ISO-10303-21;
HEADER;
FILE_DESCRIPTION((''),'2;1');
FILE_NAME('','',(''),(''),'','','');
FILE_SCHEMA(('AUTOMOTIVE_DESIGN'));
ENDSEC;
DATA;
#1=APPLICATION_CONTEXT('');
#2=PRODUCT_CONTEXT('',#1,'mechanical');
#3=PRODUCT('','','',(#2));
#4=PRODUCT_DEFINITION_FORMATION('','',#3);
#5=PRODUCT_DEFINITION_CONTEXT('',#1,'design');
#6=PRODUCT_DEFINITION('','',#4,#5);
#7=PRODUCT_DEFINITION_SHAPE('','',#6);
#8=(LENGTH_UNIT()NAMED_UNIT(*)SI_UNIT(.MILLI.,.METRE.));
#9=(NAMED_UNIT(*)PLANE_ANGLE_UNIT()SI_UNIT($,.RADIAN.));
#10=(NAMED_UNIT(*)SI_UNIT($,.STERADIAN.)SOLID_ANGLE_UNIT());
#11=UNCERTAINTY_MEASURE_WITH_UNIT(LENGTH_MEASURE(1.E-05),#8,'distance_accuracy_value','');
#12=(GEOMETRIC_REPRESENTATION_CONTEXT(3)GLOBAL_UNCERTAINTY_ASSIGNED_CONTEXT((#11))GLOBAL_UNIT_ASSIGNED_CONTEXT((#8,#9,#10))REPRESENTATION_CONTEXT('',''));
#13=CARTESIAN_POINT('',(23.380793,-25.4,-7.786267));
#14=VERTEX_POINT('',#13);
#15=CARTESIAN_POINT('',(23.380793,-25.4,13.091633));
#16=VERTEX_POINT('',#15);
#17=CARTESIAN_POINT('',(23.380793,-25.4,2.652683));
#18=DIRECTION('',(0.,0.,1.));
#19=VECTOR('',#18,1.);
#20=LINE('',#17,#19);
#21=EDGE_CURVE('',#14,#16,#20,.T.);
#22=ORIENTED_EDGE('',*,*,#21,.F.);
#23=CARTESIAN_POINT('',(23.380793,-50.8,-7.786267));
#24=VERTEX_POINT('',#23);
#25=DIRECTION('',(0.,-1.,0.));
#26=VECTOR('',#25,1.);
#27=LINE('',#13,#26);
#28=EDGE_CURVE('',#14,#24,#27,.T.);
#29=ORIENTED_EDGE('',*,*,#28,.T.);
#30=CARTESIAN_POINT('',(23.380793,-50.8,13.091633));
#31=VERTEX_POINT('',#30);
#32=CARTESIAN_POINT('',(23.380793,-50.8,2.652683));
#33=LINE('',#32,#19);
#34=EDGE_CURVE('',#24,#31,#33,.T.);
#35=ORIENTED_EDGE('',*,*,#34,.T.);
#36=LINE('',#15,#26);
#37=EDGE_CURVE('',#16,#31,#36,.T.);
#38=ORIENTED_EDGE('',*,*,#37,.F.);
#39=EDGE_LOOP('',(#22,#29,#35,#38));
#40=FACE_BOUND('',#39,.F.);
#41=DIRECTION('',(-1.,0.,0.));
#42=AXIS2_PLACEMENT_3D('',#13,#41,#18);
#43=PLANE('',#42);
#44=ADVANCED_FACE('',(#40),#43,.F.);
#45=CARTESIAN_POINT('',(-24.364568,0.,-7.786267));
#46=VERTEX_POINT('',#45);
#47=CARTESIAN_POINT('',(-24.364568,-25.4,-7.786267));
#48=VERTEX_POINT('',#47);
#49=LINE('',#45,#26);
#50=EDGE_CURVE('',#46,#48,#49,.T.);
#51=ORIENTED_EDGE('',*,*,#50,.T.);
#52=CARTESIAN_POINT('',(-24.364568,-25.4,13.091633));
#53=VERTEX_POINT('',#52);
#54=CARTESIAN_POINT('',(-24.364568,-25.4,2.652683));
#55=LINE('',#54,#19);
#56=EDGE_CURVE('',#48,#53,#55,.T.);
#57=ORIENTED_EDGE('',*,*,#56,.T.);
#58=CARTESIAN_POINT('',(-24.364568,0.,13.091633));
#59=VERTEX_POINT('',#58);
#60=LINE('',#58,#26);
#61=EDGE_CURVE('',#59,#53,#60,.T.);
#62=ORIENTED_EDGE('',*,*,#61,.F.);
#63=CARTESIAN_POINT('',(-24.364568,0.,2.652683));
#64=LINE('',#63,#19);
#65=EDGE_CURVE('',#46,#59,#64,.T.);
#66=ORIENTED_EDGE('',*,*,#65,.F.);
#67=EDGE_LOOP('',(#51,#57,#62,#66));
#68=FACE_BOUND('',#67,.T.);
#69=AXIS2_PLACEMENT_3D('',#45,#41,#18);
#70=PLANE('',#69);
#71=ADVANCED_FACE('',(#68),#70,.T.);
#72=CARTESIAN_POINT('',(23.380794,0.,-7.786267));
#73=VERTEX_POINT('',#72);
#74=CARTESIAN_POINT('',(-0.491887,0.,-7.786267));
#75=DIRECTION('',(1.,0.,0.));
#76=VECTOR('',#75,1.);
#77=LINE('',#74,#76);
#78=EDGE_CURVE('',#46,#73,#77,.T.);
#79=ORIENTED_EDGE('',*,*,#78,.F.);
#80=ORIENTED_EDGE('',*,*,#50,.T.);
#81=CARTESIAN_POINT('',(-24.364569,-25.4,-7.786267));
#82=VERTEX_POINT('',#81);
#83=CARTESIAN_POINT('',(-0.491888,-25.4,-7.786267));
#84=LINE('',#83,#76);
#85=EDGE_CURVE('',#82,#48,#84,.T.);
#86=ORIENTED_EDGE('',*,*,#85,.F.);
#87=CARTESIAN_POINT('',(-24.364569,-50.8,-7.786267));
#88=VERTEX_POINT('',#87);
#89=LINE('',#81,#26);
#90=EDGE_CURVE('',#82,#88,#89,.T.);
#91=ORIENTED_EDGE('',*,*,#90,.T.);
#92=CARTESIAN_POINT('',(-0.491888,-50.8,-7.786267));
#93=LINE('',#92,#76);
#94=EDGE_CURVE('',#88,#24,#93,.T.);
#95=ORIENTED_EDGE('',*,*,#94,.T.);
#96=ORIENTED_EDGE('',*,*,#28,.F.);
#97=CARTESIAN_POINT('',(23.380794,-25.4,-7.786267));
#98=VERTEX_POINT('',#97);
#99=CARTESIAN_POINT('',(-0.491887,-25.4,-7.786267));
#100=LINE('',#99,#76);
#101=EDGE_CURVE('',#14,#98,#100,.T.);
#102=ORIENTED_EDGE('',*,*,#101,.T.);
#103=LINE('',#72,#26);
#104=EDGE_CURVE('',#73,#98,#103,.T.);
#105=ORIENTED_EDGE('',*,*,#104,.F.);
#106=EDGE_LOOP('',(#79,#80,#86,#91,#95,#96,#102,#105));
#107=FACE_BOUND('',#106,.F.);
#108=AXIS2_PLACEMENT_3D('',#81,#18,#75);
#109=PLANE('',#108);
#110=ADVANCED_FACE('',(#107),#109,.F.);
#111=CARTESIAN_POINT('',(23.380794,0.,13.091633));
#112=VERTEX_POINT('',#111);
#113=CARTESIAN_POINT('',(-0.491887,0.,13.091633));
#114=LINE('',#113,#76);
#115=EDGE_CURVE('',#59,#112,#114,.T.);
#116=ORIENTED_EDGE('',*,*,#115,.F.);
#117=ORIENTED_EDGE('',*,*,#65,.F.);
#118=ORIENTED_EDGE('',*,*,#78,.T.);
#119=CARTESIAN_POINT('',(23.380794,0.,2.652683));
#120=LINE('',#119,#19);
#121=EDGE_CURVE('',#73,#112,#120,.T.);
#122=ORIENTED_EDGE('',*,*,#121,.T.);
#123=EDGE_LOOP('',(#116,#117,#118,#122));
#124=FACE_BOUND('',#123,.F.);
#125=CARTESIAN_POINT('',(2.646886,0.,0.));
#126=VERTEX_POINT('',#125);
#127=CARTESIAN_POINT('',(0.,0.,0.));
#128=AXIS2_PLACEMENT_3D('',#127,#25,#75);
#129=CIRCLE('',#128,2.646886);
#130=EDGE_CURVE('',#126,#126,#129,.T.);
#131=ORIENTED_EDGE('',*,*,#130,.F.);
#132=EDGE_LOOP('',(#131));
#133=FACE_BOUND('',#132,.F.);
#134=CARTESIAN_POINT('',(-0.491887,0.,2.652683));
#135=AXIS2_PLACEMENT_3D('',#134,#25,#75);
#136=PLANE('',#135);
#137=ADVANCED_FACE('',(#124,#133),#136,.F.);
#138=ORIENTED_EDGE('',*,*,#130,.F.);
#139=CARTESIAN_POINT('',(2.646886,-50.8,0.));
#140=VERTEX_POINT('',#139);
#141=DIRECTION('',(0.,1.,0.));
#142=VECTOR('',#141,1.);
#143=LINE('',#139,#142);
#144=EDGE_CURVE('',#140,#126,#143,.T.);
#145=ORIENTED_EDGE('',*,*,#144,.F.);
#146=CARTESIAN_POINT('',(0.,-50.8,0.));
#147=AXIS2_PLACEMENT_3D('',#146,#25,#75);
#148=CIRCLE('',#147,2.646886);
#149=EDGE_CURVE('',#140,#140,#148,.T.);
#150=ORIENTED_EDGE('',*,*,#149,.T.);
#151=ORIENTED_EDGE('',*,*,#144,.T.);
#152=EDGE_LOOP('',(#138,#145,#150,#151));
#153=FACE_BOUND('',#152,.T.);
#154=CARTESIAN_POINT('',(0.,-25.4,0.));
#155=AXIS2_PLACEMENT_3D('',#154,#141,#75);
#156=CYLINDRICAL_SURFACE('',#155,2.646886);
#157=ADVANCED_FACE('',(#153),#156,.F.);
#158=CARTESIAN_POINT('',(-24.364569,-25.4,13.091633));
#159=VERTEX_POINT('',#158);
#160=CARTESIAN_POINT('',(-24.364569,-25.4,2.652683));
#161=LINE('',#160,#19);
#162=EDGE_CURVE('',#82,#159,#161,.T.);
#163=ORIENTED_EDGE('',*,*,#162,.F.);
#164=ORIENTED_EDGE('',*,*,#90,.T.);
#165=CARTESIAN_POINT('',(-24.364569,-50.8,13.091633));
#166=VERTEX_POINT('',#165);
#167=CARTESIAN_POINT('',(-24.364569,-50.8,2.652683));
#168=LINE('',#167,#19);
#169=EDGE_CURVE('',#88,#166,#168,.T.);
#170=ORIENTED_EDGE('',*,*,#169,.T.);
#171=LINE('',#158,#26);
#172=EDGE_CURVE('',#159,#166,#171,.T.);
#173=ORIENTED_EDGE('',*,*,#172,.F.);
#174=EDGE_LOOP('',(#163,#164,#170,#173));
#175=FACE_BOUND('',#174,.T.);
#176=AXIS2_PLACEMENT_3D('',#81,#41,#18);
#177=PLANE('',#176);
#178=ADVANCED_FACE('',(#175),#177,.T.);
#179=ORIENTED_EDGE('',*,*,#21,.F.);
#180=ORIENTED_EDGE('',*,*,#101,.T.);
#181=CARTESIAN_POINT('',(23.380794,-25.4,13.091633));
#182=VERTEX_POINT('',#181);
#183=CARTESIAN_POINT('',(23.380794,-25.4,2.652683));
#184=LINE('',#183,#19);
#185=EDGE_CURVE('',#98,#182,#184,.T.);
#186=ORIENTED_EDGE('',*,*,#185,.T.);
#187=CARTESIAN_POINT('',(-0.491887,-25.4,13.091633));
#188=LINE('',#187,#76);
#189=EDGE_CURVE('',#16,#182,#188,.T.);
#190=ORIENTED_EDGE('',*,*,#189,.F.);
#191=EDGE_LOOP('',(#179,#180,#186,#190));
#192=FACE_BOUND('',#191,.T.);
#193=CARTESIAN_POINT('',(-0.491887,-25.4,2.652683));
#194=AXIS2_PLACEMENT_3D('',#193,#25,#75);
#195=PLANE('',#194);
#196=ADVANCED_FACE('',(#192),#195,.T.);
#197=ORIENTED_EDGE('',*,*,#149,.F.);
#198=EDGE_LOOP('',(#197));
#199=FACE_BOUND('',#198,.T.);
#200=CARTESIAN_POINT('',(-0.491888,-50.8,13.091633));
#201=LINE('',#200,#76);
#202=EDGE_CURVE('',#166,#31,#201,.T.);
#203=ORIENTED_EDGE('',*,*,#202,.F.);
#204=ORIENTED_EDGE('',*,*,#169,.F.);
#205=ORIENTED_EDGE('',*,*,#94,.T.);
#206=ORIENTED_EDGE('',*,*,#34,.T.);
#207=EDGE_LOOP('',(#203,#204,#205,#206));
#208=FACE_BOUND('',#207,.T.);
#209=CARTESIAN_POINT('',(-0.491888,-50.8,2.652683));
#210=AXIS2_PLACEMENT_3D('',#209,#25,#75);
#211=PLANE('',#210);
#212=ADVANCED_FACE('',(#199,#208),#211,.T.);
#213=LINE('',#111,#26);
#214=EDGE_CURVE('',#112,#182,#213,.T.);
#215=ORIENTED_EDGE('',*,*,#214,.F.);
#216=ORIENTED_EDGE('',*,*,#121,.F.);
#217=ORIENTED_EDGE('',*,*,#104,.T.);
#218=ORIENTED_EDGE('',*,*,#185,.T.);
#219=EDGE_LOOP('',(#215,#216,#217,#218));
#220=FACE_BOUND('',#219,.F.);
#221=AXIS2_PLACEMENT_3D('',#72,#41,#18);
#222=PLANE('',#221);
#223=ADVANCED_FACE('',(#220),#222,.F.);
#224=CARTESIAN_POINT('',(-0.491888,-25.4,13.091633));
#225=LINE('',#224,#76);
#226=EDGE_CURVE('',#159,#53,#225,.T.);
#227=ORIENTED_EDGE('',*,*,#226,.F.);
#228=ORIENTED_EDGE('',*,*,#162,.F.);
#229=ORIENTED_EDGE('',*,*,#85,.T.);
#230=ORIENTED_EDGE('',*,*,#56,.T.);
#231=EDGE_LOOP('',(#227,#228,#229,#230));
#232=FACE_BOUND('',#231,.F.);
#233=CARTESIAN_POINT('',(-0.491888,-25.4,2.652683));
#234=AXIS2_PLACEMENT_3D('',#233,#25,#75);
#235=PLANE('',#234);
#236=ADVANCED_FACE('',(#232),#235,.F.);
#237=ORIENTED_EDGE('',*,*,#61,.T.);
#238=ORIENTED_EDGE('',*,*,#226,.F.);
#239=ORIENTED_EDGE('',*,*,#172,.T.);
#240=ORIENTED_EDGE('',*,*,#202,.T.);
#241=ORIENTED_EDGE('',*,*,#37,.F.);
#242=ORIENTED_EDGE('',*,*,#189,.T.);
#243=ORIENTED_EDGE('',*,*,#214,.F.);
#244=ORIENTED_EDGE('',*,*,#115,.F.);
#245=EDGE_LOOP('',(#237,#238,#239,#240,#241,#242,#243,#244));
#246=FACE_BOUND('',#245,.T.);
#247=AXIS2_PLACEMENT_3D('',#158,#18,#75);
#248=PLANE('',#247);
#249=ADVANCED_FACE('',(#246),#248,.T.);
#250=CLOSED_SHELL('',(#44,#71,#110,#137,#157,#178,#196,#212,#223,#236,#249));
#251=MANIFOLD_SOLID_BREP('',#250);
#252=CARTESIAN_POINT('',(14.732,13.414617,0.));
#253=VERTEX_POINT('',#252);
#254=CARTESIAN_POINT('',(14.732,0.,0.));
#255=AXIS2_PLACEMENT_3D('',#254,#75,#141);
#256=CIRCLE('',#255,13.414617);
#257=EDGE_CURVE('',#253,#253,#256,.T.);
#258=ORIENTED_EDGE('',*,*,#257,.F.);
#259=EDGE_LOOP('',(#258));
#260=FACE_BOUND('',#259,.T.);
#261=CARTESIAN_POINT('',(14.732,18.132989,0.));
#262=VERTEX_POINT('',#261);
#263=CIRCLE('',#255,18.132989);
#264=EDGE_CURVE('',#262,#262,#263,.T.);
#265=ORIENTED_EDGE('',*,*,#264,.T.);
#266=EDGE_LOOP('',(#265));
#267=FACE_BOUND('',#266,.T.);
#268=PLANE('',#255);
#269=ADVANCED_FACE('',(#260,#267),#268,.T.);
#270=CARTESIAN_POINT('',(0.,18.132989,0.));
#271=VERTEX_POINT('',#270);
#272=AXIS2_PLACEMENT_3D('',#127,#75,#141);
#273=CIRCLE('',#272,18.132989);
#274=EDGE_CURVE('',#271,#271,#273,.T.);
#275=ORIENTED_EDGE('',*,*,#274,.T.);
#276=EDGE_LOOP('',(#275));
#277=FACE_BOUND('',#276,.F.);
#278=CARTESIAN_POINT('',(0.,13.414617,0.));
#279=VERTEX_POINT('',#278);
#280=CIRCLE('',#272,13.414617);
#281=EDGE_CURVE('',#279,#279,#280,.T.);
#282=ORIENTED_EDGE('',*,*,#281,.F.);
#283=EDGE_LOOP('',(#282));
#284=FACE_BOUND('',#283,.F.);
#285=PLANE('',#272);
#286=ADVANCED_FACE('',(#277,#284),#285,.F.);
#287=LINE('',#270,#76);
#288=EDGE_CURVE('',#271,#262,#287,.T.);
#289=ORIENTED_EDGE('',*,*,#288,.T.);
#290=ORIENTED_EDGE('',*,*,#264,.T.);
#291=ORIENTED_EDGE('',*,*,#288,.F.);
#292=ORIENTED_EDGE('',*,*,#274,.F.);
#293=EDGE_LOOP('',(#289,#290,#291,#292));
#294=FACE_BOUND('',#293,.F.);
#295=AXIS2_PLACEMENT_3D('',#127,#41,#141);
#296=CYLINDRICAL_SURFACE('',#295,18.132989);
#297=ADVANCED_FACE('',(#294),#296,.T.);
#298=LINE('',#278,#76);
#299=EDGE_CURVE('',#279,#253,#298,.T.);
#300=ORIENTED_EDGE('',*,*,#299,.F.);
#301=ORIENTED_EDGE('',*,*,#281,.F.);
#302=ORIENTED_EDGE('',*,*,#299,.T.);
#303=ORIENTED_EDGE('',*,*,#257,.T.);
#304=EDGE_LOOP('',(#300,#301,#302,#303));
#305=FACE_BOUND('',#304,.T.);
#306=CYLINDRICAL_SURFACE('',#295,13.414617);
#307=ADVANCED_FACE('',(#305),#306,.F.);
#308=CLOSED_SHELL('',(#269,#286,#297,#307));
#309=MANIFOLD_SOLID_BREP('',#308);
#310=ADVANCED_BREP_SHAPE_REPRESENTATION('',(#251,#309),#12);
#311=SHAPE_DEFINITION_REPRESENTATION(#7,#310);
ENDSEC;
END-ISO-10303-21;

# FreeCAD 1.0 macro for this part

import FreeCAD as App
import Part
import Sketcher
Q = App.Units.Quantity

doc = App.newDocument("Part")
params = doc.addObject("Spreadsheet::Sheet", "Params")
for row, (alias, value) in enumerate([
    ("pad1_length", "0.58 in"),
    ("pad2_length", "1 in"),
    ("pad3_length", "1 in"),
], start=1):
    params.set(f"A{row}", alias)
    params.set(f"B{row}", "=" + value)
    params.setAlias(f"B{row}", alias)

body = doc.addObject("PartDesign::Body", "Body")

sketch1 = body.newObject("Sketcher::SketchObject", "Sketch")
sketch1.AttachmentSupport = (doc.getObject("YZ_Plane"), [""])
sketch1.MapMode = "FlatFace"
sketch1.addGeometry([
    Part.Circle(App.Vector(0, 0, 0), App.Vector(0, 0, 1), 18),
    Part.Circle(App.Vector(0, 0, 0), App.Vector(0, 0, 1), 13),
], False)
sketch1.addConstraint([
    Sketcher.Constraint("Coincident", 0, 3, -1, 1),
    Sketcher.Constraint("Coincident", 1, 3, -1, 1),
    Sketcher.Constraint("Diameter", 0, Q("36.265978 mm")),
    Sketcher.Constraint("Diameter", 1, Q("26.829234 mm")),
])
pad1 = body.newObject("PartDesign::Pad", "Pad")
pad1.Profile = sketch1
pad1.setExpression("Length", "Params.pad1_length")
body2 = doc.addObject("PartDesign::Body", "Body001")

sketch2 = body2.newObject("Sketcher::SketchObject", "Sketch001")
sketch2.AttachmentSupport = (doc.getObject("XZ_Plane001"), [""])
sketch2.MapMode = "FlatFace"
sketch2.addGeometry([
    Part.LineSegment(App.Vector(-24.4, 13.1, 0), App.Vector(-24.4, -7.8, 0)),
    Part.LineSegment(App.Vector(-24.4, -7.8, 0), App.Vector(23.4, -7.8, 0)),
    Part.LineSegment(App.Vector(23.4, -7.8, 0), App.Vector(23.4, 13.1, 0)),
    Part.LineSegment(App.Vector(23.4, 13.1, 0), App.Vector(-24.4, 13.1, 0)),
    Part.Circle(App.Vector(0, 0, 0), App.Vector(0, 0, 1), 2.6),
], False)
sketch2.addConstraint([
    Sketcher.Constraint("Coincident", 0, 2, 1, 1),
    Sketcher.Constraint("Coincident", 1, 2, 2, 1),
    Sketcher.Constraint("Coincident", 2, 2, 3, 1),
    Sketcher.Constraint("Coincident", 3, 2, 0, 1),
    Sketcher.Constraint("Vertical", 0),
    Sketcher.Constraint("Horizontal", 1),
    Sketcher.Constraint("Vertical", 2),
    Sketcher.Constraint("Horizontal", 3),
    Sketcher.Constraint("Coincident", 4, 3, -1, 1),
    Sketcher.Constraint("Diameter", 4, Q("5.293772 mm")),
    Sketcher.Constraint("DistanceY", 0, 2, 0, 1, Q("20.8779 mm")),
    Sketcher.Constraint("DistanceX", 1, 1, 1, 2, Q("47.745362 mm")),
    Sketcher.Constraint("DistanceX", 0, 2, -1, 1, Q("24.364568 mm")),
    Sketcher.Constraint("DistanceY", 0, 2, -1, 1, Q("7.786267 mm")),
])
pad2 = body2.newObject("PartDesign::Pad", "Pad001")
pad2.Profile = sketch2
pad2.setExpression("Length", "Params.pad2_length")

sketch3 = body2.newObject("Sketcher::SketchObject", "Sketch002")
sketch3.AttachmentSupport = (doc.getObject("XZ_Plane001"), [""])
sketch3.MapMode = "FlatFace"
sketch3.AttachmentOffset = App.Placement(App.Vector(0, 0, 1 * 25.4), App.Rotation())
sketch3.addGeometry([
    Part.LineSegment(App.Vector(-24.4, 13.1, 0), App.Vector(-24.4, -7.8, 0)),
    Part.LineSegment(App.Vector(-24.4, -7.8, 0), App.Vector(23.4, -7.8, 0)),
    Part.LineSegment(App.Vector(23.4, -7.8, 0), App.Vector(23.4, 13.1, 0)),
    Part.LineSegment(App.Vector(23.4, 13.1, 0), App.Vector(-24.4, 13.1, 0)),
    Part.Circle(App.Vector(0, 0, 0), App.Vector(0, 0, 1), 2.6),
], False)
sketch3.addConstraint([
    Sketcher.Constraint("Coincident", 0, 2, 1, 1),
    Sketcher.Constraint("Coincident", 1, 2, 2, 1),
    Sketcher.Constraint("Coincident", 2, 2, 3, 1),
    Sketcher.Constraint("Coincident", 3, 2, 0, 1),
    Sketcher.Constraint("Vertical", 0),
    Sketcher.Constraint("Horizontal", 1),
    Sketcher.Constraint("Vertical", 2),
    Sketcher.Constraint("Horizontal", 3),
    Sketcher.Constraint("Coincident", 4, 3, -1, 1),
    Sketcher.Constraint("Diameter", 4, Q("5.293772 mm")),
    Sketcher.Constraint("DistanceY", 0, 2, 0, 1, Q("20.8779 mm")),
    Sketcher.Constraint("DistanceX", 1, 1, 1, 2, Q("47.745362 mm")),
    Sketcher.Constraint("DistanceX", 0, 2, -1, 1, Q("24.364569 mm")),
    Sketcher.Constraint("DistanceY", 0, 2, -1, 1, Q("7.786267 mm")),
])
pad3 = body2.newObject("PartDesign::Pad", "Pad002")
pad3.Profile = sketch3
pad3.setExpression("Length", "Params.pad3_length")

doc.recompute()
